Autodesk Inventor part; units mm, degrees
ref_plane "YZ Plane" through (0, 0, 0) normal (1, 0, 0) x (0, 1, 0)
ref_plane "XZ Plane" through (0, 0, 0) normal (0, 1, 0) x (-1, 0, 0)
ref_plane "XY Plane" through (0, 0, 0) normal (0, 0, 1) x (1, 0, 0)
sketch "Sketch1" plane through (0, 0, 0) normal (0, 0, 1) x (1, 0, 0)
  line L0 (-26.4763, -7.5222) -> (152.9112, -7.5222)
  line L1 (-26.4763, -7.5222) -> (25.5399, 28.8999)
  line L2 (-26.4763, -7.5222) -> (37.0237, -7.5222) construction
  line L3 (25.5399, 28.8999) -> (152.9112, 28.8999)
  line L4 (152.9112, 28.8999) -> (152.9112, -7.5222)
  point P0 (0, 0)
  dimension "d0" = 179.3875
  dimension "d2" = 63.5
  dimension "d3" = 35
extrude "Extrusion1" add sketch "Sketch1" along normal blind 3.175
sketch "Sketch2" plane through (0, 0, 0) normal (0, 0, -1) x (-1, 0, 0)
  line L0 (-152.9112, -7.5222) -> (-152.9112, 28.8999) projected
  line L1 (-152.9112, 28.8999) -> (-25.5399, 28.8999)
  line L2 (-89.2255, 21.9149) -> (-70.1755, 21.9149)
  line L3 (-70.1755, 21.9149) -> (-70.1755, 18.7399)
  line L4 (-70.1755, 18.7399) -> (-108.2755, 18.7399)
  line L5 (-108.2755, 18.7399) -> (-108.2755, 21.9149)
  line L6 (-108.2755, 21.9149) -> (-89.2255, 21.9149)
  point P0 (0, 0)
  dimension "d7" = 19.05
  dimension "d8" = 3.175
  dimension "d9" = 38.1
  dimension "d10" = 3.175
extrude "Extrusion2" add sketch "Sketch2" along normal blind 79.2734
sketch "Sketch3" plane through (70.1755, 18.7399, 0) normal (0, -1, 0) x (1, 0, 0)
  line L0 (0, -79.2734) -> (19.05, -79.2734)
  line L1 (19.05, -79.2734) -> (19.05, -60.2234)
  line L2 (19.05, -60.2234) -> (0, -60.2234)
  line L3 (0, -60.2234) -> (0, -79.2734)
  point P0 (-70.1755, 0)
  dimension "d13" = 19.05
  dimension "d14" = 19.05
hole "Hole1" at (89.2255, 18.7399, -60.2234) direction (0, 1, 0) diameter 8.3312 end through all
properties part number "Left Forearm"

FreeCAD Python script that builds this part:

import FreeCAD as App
import Part
import Sketcher
Q = App.Units.Quantity

doc = App.newDocument("Part")
body = doc.addObject("PartDesign::Body", "Body")

sketch1 = body.newObject("Sketcher::SketchObject", "Sketch")
sketch1.AttachmentSupport = (doc.getObject("XY_Plane"), [""])
sketch1.MapMode = "FlatFace"
sketch1.addGeometry(Part.LineSegment(App.Vector(25.5399, 28.8999, 0), App.Vector(-26.4763, -7.5222, 0)), False)
sketch1.addGeometry(Part.LineSegment(App.Vector(-26.4763, -7.5222, 0), App.Vector(152.9112, -7.5222, 0)), False)
sketch1.addGeometry(Part.LineSegment(App.Vector(152.9112, -7.5222, 0), App.Vector(152.9112, 28.8999, 0)), False)
sketch1.addGeometry(Part.LineSegment(App.Vector(152.9112, 28.8999, 0), App.Vector(25.5399, 28.8999, 0)), False)
sketch1.addConstraint(Sketcher.Constraint("Coincident", 0, 2, 1, 1))
sketch1.addConstraint(Sketcher.Constraint("Coincident", 1, 2, 2, 1))
sketch1.addConstraint(Sketcher.Constraint("Coincident", 2, 2, 3, 1))
sketch1.addConstraint(Sketcher.Constraint("Coincident", 3, 2, 0, 1))
sketch1.addConstraint(Sketcher.Constraint("Horizontal", 1))
sketch1.addConstraint(Sketcher.Constraint("Vertical", 2))
sketch1.addConstraint(Sketcher.Constraint("Horizontal", 3))
sketch1.addConstraint(Sketcher.Constraint("Distance", 0, Q("2.5 in")))
sketch1.addConstraint(Sketcher.Constraint("DistanceX", 1, 1, 1, 2, Q("7.0625 in")))
sketch1.addConstraint(Sketcher.Constraint("Angle", 0, Q("-145 deg")))
sketch1.addConstraint(Sketcher.Constraint("DistanceY", -1, 1, 2, 2, Q("1.1378 in")))
sketch1.addConstraint(Sketcher.Constraint("DistanceX", -1, 1, 3, 2, Q("1.0055 in")))
pad1 = body.newObject("PartDesign::Pad", "Pad")
pad1.Profile = sketch1
pad1.Length = Q("0.125 in")

sketch2 = body.newObject("Sketcher::SketchObject", "Sketch001")
sketch2.AttachmentSupport = (doc.getObject("XY_Plane"), [""])
sketch2.MapMode = "FlatFace"
sketch2.addGeometry(Part.LineSegment(App.Vector(70.1755, 21.9149, 0), App.Vector(108.2755, 21.9149, 0)), False)
sketch2.addGeometry(Part.LineSegment(App.Vector(108.2755, 21.9149, 0), App.Vector(108.2755, 18.7399, 0)), False)
sketch2.addGeometry(Part.LineSegment(App.Vector(108.2755, 18.7399, 0), App.Vector(70.1755, 18.7399, 0)), False)
sketch2.addGeometry(Part.LineSegment(App.Vector(70.1755, 18.7399, 0), App.Vector(70.1755, 21.9149, 0)), False)
sketch2.addConstraint(Sketcher.Constraint("Coincident", 0, 2, 1, 1))
sketch2.addConstraint(Sketcher.Constraint("Coincident", 1, 2, 2, 1))
sketch2.addConstraint(Sketcher.Constraint("Coincident", 2, 2, 3, 1))
sketch2.addConstraint(Sketcher.Constraint("Coincident", 3, 2, 0, 1))
sketch2.addConstraint(Sketcher.Constraint("Horizontal", 0))
sketch2.addConstraint(Sketcher.Constraint("Vertical", 1))
sketch2.addConstraint(Sketcher.Constraint("Horizontal", 2))
sketch2.addConstraint(Sketcher.Constraint("Vertical", 3))
sketch2.addConstraint(Sketcher.Constraint("DistanceX", 0, 1, 0, 2, Q("1.5 in")))
sketch2.addConstraint(Sketcher.Constraint("DistanceY", 1, 2, 1, 1, Q("0.125 in")))
sketch2.addConstraint(Sketcher.Constraint("DistanceY", -1, 1, 0, 2, Q("0.8628 in")))
sketch2.addConstraint(Sketcher.Constraint("DistanceX", -1, 1, 0, 2, Q("108.2755 mm")))
pad2 = body.newObject("PartDesign::Pad", "Pad001")
pad2.Profile = sketch2
pad2.Length = Q("3.121 in")
pad2.Reversed = True

sketch3 = body.newObject("Sketcher::SketchObject", "Sketch002")
sketch3.AttachmentSupport = (doc.getObject("XZ_Plane"), [""])
sketch3.MapMode = "FlatFace"
sketch3.AttachmentOffset = App.Placement(App.Vector(0, 0, -0.7377913 * 25.4), App.Rotation())
sketch3.addGeometry(Part.Circle(App.Vector(89.2255, -60.2234, 0), App.Vector(0, 0, 1), 4.1656), False)
sketch3.addConstraint(Sketcher.Constraint("Diameter", 0, Q("0.328 in")))
sketch3.addConstraint(Sketcher.Constraint("DistanceY", 0, 3, -1, 1, Q("2.371 in")))
sketch3.addConstraint(Sketcher.Constraint("DistanceX", -1, 1, 0, 3, Q("89.2255 mm")))
doc.recompute()
hole = body.newObject("PartDesign::Hole", "Hole")
hole.Profile = sketch3
hole.ThreadType = "None"
hole.Diameter = Q("0.328 in")
hole.DepthType = "ThroughAll"

doc.recompute()
